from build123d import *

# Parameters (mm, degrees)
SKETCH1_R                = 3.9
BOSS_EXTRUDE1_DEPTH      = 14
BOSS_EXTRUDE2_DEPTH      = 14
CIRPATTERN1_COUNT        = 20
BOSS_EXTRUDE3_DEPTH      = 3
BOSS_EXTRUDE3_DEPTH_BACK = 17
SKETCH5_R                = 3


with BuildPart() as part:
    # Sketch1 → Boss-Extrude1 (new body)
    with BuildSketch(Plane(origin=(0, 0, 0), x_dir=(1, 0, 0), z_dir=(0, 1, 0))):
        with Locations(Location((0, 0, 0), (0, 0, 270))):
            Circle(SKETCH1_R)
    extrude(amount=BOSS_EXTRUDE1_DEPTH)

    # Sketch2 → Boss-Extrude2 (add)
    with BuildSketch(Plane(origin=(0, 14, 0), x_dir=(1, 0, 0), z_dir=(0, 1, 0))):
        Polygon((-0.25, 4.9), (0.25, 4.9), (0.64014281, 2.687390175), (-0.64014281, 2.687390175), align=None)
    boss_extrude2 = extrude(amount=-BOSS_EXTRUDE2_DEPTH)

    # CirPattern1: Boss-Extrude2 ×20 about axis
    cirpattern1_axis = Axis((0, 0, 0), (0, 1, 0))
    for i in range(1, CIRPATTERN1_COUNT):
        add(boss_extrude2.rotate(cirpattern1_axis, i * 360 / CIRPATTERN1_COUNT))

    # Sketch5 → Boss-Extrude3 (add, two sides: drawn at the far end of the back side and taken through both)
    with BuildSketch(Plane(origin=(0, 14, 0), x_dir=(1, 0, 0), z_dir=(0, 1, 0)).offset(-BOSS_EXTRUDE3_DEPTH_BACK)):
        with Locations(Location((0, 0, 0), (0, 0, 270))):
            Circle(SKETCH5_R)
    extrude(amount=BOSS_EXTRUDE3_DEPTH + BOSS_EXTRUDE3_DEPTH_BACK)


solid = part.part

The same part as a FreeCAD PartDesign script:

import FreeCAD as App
import Part
import Sketcher
Q = App.Units.Quantity

doc = App.newDocument("Part")
body = doc.addObject("PartDesign::Body", "Body")

sketch1 = doc.addObject("Sketcher::SketchObject", "Sketch")
body.addObject(sketch1)
sketch1.AttachmentSupport = (doc.XZ_Plane, [""])
sketch1.MapMode = "FlatFace"
sketch1.addGeometry(Part.Circle(App.Vector(0, 0, 0), App.Vector(0, 0, 1), 3.9), False)
sketch1.addConstraint(Sketcher.Constraint("Coincident", 0, 3, -1, 1))
sketch1.addConstraint(Sketcher.Constraint("Diameter", 0, Q("7.8 mm")))
pad1 = doc.addObject("PartDesign::Pad", "Pad")
body.addObject(pad1)
pad1.Profile = sketch1
pad1.Length = 14
pad1.Reversed = True

sketch2 = doc.addObject("Sketcher::SketchObject", "Sketch001")
body.addObject(sketch2)
sketch2.AttachmentSupport = (doc.XZ_Plane, [""])
sketch2.MapMode = "FlatFace"
sketch2.AttachmentOffset = App.Placement(App.Vector(0, 0, -14), App.Rotation())
sketch2.addGeometry(Part.LineSegment(App.Vector(0.2, -4.9, 0), App.Vector(-0.2, -4.9, 0)), False)
sketch2.addGeometry(Part.LineSegment(App.Vector(-0.2, -4.9, 0), App.Vector(-0.6, -2.7, 0)), False)
sketch2.addGeometry(Part.LineSegment(App.Vector(-0.6, -2.7, 0), App.Vector(0.6, -2.7, 0)), False)
sketch2.addGeometry(Part.LineSegment(App.Vector(0.6, -2.7, 0), App.Vector(0.2, -4.9, 0)), False)
sketch2.addConstraint(Sketcher.Constraint("Coincident", 0, 2, 1, 1))
sketch2.addConstraint(Sketcher.Constraint("Coincident", 1, 2, 2, 1))
sketch2.addConstraint(Sketcher.Constraint("Coincident", 2, 2, 3, 1))
sketch2.addConstraint(Sketcher.Constraint("Coincident", 3, 2, 0, 1))
sketch2.addConstraint(Sketcher.Constraint("Horizontal", 0))
sketch2.addConstraint(Sketcher.Constraint("Horizontal", 2))
sketch2.addConstraint(Sketcher.Constraint("Equal", 1, 3))
sketch2.addConstraint(Sketcher.Constraint("Angle", 1, Q("100 deg")))
sketch2.addConstraint(Sketcher.Constraint("DistanceX", 0, 2, 0, 1, Q("0.5 mm")))
sketch2.addConstraint(Sketcher.Constraint("DistanceY", 0, 2, -1, 1, Q("4.9 mm")))
sketch2.addConstraint(Sketcher.Constraint("DistanceX", 0, 2, -1, 1, Q("0.25 mm")))
sketch2.addConstraint(Sketcher.Constraint("DistanceX", 2, 1, 2, 2, Q("1.280286 mm")))
pad2 = doc.addObject("PartDesign::Pad", "Pad001")
body.addObject(pad2)
pad2.Profile = sketch2
pad2.Length = 14
doc.recompute()

polarpattern = doc.addObject("PartDesign::PolarPattern", "PolarPattern")
body.addObject(polarpattern)
polarpattern.Originals = [pad2]
polarpattern.Axis = (doc.Y_Axis, [""])
polarpattern.Angle = 360
polarpattern.Occurrences = 20
body.Tip = polarpattern

sketch3 = doc.addObject("Sketcher::SketchObject", "Sketch002")
body.addObject(sketch3)
sketch3.AttachmentSupport = (doc.XZ_Plane, [""])
sketch3.MapMode = "FlatFace"
sketch3.AttachmentOffset = App.Placement(App.Vector(0, 0, -14), App.Rotation())
sketch3.addGeometry(Part.Circle(App.Vector(0, 0, 0), App.Vector(0, 0, 1), 3), False)
sketch3.addConstraint(Sketcher.Constraint("Coincident", 0, 3, -1, 1))
sketch3.addConstraint(Sketcher.Constraint("Diameter", 0, Q("6 mm")))
pad3 = doc.addObject("PartDesign::Pad", "Pad002")
body.addObject(pad3)
pad3.Profile = sketch3
pad3.Type = "TwoLengths"
pad3.Length = 3
pad3.Length2 = 17
pad3.Reversed = True

doc.recompute()
